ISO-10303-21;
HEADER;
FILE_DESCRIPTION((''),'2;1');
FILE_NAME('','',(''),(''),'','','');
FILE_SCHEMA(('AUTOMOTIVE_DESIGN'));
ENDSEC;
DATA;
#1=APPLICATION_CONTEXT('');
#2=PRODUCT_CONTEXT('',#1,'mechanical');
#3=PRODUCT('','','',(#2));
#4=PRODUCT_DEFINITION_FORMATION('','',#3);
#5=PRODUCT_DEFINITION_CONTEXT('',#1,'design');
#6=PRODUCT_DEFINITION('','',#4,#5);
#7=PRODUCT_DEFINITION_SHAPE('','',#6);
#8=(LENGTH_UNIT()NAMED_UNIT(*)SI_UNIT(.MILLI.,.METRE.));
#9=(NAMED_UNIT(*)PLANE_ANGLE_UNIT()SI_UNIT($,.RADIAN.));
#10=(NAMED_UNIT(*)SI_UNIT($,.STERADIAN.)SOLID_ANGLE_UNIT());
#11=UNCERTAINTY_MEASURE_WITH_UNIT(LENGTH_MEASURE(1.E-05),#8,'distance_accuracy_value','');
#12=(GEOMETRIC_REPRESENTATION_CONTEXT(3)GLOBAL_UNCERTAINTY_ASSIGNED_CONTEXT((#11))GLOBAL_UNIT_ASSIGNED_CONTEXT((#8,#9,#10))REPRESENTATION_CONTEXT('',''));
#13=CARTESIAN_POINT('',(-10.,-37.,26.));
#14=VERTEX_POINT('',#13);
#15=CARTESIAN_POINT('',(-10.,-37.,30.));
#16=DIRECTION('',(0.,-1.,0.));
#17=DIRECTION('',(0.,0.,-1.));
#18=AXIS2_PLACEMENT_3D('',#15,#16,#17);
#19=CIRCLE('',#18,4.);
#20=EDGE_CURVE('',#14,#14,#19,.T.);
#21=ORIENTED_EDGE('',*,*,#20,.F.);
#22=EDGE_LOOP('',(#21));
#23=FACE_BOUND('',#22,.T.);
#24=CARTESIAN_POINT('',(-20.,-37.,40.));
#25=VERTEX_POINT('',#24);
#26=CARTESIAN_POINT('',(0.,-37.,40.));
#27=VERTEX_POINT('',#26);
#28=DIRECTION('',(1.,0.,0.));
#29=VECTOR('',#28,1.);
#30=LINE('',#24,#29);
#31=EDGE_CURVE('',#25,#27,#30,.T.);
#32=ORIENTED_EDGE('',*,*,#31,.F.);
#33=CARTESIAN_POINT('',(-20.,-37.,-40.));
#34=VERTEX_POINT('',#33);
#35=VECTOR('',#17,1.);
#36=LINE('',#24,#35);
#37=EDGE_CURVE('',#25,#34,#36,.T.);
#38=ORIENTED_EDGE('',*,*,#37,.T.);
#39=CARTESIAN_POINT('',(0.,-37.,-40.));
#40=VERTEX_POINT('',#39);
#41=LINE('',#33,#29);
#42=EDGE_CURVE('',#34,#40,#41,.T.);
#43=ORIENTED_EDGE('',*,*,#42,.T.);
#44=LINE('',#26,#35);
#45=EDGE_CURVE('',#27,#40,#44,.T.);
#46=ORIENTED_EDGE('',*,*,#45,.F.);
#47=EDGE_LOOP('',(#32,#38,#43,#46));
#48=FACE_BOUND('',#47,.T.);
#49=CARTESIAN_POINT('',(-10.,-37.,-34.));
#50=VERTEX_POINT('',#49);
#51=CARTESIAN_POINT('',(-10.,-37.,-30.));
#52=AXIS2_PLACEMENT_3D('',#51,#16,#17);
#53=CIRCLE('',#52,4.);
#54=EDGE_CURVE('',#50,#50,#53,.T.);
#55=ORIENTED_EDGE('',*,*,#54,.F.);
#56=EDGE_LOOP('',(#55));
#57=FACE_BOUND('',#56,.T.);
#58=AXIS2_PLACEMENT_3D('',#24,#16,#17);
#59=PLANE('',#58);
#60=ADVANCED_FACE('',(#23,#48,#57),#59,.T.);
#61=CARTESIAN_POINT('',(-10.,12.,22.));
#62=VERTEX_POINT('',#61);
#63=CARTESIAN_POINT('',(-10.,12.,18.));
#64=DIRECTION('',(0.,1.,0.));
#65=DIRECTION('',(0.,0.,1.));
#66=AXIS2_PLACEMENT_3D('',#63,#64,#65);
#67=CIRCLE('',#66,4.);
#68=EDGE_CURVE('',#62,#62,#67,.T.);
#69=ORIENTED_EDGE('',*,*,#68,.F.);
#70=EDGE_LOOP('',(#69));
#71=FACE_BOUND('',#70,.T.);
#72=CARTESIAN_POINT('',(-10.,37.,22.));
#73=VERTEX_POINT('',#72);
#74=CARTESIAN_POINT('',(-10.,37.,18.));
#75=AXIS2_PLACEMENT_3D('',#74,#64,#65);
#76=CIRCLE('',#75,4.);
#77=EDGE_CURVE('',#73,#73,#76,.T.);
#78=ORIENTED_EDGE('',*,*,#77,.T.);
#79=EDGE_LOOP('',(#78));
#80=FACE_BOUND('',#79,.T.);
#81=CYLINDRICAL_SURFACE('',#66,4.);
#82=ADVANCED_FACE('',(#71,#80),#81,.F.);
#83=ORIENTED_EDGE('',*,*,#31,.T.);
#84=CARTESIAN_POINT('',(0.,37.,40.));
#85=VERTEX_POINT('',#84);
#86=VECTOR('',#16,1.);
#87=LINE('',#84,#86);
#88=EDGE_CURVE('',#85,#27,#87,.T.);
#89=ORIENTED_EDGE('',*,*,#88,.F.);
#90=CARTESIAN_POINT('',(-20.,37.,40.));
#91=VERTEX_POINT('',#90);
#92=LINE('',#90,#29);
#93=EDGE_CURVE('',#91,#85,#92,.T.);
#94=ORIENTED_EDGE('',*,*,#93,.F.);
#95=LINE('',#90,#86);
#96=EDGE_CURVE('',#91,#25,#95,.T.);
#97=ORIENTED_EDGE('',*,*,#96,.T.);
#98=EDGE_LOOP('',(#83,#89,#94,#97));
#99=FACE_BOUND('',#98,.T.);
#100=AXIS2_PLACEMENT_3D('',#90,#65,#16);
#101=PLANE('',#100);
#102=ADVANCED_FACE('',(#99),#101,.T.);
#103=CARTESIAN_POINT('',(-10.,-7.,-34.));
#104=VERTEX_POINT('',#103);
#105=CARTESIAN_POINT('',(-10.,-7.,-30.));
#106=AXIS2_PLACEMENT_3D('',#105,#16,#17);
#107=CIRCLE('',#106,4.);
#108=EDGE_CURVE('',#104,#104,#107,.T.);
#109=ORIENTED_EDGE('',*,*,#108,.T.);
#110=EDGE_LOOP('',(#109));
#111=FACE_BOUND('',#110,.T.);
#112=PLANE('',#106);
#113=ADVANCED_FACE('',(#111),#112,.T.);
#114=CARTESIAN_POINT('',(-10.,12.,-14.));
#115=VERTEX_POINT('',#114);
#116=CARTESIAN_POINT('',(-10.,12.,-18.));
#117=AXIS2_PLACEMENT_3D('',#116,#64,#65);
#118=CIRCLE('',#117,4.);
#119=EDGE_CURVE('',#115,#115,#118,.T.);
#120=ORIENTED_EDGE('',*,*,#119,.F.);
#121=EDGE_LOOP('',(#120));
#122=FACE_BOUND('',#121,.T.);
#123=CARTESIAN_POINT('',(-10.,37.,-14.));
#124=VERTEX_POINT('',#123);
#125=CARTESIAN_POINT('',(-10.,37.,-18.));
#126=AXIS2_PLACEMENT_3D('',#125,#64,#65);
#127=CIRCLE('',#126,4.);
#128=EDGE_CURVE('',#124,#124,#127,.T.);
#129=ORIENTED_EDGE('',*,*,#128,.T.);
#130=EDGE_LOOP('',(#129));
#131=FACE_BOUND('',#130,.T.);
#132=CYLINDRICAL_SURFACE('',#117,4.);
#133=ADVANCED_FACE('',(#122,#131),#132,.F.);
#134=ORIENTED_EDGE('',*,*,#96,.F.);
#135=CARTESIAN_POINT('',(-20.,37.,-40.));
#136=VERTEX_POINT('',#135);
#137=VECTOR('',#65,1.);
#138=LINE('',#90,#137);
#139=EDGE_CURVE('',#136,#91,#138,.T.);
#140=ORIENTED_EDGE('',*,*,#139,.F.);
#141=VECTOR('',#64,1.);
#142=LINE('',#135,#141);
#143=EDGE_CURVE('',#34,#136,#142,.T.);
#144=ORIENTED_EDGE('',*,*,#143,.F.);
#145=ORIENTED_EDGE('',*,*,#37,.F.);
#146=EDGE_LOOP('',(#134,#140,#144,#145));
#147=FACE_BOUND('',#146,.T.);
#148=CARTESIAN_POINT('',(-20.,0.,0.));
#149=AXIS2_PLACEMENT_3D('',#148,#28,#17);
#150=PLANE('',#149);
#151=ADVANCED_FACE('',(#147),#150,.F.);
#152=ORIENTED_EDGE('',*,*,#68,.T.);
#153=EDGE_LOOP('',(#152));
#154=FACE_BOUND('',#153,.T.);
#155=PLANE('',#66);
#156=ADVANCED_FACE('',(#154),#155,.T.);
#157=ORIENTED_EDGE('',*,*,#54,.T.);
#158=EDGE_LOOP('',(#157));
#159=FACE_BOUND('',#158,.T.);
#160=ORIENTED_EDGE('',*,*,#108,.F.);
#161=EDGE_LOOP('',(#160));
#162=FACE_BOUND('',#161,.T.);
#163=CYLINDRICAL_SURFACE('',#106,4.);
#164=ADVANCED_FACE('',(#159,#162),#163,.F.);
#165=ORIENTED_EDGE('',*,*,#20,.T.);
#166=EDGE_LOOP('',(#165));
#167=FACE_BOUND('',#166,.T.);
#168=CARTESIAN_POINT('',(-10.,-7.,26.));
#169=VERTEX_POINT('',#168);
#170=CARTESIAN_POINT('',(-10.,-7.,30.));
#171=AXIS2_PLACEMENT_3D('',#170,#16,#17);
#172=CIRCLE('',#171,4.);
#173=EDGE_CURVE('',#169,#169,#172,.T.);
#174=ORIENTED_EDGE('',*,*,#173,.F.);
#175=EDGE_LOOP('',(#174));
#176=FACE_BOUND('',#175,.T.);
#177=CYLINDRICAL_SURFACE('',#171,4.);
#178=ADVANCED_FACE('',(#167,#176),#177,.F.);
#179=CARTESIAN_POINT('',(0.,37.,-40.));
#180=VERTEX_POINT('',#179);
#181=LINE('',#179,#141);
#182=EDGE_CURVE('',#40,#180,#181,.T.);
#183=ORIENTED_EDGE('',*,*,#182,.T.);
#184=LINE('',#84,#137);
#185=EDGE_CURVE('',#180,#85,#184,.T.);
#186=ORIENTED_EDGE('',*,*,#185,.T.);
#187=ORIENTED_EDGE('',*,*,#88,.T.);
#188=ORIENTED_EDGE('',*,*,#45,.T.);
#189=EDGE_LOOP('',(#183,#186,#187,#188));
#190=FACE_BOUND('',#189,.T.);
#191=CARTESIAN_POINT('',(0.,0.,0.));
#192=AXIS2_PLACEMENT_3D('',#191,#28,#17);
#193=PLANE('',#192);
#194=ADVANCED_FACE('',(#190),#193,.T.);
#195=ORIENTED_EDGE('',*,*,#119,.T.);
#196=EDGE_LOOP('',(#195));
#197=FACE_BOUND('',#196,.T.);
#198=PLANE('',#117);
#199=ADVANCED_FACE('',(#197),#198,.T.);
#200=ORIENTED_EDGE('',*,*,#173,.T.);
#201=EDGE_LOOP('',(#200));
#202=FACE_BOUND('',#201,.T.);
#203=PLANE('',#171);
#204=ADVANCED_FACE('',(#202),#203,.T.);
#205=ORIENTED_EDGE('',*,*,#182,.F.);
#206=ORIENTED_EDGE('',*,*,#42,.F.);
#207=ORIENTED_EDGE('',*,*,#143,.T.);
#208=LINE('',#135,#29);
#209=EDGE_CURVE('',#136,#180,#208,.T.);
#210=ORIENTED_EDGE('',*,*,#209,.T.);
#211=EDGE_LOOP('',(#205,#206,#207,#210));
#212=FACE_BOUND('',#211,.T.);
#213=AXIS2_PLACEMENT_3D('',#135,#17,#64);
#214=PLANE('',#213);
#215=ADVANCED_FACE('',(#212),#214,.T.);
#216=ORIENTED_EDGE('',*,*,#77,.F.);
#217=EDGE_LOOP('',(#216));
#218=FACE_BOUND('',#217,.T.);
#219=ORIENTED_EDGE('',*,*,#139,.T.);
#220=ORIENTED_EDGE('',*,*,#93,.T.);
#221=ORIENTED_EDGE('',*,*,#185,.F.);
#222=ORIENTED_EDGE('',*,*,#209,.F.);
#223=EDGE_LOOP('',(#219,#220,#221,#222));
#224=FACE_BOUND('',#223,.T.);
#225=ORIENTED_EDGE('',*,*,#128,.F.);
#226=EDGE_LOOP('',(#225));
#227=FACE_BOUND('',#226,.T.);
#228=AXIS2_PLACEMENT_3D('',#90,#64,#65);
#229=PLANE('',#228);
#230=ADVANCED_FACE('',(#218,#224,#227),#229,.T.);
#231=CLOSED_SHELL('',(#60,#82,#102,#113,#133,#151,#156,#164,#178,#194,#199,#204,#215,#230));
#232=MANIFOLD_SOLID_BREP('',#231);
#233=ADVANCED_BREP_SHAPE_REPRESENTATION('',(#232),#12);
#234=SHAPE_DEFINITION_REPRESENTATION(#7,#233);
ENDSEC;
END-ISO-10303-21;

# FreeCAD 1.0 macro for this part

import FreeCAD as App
import Part
import Sketcher

V = App.Vector


def add_polygon(sketch, points):
    """Adds a closed chain of lines whose ends are joined by coincident constraints."""
    first, n = sketch.GeometryCount, len(points)
    for a, b in zip(points, points[1:] + points[:1]):
        sketch.addGeometry(Part.LineSegment(App.Vector(*a, 0), App.Vector(*b, 0)), False)
    for i in range(n):
        sketch.addConstraint(Sketcher.Constraint("Coincident", first + i, 2, first + (i + 1) % n, 1))

doc = App.newDocument("Part")
body = doc.addObject("PartDesign::Body", "Body")

sketch1 = doc.addObject("Sketcher::SketchObject", "Sketch")
body.addObject(sketch1)
sketch1.AttachmentSupport = (doc.YZ_Plane, [""])
sketch1.MapMode = "FlatFace"
add_polygon(sketch1, [(37, 40), (-37, 40), (-37, -40), (37, -40)])
sketch1.addConstraint([
    Sketcher.Constraint("Horizontal", 0),
    Sketcher.Constraint("Vertical", 1),
    Sketcher.Constraint("Horizontal", 2),
    Sketcher.Constraint("Vertical", 3),
    Sketcher.Constraint("Symmetric", 0, 2, 2, 2, -1, 1),
    Sketcher.Constraint("DistanceX", 0, 2, 0, 1, 74.0),
    Sketcher.Constraint("DistanceY", 1, 2, 1, 1, 80.0),
])
pad1 = doc.addObject("PartDesign::Pad", "Pad")
body.addObject(pad1)
pad1.Profile = sketch1
pad1.Length = 20
pad1.Reversed = True

sketch2 = doc.addObject("Sketcher::SketchObject", "Sketch001")
body.addObject(sketch2)
sketch2.AttachmentSupport = (doc.XZ_Plane, [""])
sketch2.MapMode = "FlatFace"
sketch2.AttachmentOffset = App.Placement(V(0, 0, -37), App.Rotation())
sketch2.addGeometry([
    Part.Circle(V(-10, 18, 0), V(0, 0, 1), 4),
    Part.Circle(V(-10, -18, 0), V(0, 0, 1), 4),
], False)
sketch2.addConstraint([
    Sketcher.Constraint("Equal", 0, 1),
    Sketcher.Constraint("Symmetric", 0, 3, 1, 3, -1),
    Sketcher.Constraint("Diameter", 0, 8.0),
    Sketcher.Constraint("DistanceX", 0, 3, -1, 1, 10.0),
    Sketcher.Constraint("DistanceY", -1, 1, 0, 3, 18.0),
])
pocket1 = doc.addObject("PartDesign::Pocket", "Pocket")
body.addObject(pocket1)
pocket1.Profile = sketch2
pocket1.Length = 25
pocket1.Reversed = True

sketch3 = doc.addObject("Sketcher::SketchObject", "Sketch002")
body.addObject(sketch3)
sketch3.AttachmentSupport = (doc.XZ_Plane, [""])
sketch3.MapMode = "FlatFace"
sketch3.AttachmentOffset = App.Placement(V(0, 0, 37), App.Rotation())
sketch3.addGeometry([
    Part.Circle(V(-10, 30, 0), V(0, 0, 1), 4),
    Part.Circle(V(-10, -30, 0), V(0, 0, 1), 4),
], False)
sketch3.addConstraint([
    Sketcher.Constraint("Equal", 0, 1),
    Sketcher.Constraint("Symmetric", 0, 3, 1, 3, -1),
    Sketcher.Constraint("Diameter", 0, 8.0),
    Sketcher.Constraint("DistanceX", 0, 3, -1, 1, 10.0),
    Sketcher.Constraint("DistanceY", -1, 1, 0, 3, 30.0),
])
pocket2 = doc.addObject("PartDesign::Pocket", "Pocket001")
body.addObject(pocket2)
pocket2.Profile = sketch3
pocket2.Length = 30

doc.recompute()
